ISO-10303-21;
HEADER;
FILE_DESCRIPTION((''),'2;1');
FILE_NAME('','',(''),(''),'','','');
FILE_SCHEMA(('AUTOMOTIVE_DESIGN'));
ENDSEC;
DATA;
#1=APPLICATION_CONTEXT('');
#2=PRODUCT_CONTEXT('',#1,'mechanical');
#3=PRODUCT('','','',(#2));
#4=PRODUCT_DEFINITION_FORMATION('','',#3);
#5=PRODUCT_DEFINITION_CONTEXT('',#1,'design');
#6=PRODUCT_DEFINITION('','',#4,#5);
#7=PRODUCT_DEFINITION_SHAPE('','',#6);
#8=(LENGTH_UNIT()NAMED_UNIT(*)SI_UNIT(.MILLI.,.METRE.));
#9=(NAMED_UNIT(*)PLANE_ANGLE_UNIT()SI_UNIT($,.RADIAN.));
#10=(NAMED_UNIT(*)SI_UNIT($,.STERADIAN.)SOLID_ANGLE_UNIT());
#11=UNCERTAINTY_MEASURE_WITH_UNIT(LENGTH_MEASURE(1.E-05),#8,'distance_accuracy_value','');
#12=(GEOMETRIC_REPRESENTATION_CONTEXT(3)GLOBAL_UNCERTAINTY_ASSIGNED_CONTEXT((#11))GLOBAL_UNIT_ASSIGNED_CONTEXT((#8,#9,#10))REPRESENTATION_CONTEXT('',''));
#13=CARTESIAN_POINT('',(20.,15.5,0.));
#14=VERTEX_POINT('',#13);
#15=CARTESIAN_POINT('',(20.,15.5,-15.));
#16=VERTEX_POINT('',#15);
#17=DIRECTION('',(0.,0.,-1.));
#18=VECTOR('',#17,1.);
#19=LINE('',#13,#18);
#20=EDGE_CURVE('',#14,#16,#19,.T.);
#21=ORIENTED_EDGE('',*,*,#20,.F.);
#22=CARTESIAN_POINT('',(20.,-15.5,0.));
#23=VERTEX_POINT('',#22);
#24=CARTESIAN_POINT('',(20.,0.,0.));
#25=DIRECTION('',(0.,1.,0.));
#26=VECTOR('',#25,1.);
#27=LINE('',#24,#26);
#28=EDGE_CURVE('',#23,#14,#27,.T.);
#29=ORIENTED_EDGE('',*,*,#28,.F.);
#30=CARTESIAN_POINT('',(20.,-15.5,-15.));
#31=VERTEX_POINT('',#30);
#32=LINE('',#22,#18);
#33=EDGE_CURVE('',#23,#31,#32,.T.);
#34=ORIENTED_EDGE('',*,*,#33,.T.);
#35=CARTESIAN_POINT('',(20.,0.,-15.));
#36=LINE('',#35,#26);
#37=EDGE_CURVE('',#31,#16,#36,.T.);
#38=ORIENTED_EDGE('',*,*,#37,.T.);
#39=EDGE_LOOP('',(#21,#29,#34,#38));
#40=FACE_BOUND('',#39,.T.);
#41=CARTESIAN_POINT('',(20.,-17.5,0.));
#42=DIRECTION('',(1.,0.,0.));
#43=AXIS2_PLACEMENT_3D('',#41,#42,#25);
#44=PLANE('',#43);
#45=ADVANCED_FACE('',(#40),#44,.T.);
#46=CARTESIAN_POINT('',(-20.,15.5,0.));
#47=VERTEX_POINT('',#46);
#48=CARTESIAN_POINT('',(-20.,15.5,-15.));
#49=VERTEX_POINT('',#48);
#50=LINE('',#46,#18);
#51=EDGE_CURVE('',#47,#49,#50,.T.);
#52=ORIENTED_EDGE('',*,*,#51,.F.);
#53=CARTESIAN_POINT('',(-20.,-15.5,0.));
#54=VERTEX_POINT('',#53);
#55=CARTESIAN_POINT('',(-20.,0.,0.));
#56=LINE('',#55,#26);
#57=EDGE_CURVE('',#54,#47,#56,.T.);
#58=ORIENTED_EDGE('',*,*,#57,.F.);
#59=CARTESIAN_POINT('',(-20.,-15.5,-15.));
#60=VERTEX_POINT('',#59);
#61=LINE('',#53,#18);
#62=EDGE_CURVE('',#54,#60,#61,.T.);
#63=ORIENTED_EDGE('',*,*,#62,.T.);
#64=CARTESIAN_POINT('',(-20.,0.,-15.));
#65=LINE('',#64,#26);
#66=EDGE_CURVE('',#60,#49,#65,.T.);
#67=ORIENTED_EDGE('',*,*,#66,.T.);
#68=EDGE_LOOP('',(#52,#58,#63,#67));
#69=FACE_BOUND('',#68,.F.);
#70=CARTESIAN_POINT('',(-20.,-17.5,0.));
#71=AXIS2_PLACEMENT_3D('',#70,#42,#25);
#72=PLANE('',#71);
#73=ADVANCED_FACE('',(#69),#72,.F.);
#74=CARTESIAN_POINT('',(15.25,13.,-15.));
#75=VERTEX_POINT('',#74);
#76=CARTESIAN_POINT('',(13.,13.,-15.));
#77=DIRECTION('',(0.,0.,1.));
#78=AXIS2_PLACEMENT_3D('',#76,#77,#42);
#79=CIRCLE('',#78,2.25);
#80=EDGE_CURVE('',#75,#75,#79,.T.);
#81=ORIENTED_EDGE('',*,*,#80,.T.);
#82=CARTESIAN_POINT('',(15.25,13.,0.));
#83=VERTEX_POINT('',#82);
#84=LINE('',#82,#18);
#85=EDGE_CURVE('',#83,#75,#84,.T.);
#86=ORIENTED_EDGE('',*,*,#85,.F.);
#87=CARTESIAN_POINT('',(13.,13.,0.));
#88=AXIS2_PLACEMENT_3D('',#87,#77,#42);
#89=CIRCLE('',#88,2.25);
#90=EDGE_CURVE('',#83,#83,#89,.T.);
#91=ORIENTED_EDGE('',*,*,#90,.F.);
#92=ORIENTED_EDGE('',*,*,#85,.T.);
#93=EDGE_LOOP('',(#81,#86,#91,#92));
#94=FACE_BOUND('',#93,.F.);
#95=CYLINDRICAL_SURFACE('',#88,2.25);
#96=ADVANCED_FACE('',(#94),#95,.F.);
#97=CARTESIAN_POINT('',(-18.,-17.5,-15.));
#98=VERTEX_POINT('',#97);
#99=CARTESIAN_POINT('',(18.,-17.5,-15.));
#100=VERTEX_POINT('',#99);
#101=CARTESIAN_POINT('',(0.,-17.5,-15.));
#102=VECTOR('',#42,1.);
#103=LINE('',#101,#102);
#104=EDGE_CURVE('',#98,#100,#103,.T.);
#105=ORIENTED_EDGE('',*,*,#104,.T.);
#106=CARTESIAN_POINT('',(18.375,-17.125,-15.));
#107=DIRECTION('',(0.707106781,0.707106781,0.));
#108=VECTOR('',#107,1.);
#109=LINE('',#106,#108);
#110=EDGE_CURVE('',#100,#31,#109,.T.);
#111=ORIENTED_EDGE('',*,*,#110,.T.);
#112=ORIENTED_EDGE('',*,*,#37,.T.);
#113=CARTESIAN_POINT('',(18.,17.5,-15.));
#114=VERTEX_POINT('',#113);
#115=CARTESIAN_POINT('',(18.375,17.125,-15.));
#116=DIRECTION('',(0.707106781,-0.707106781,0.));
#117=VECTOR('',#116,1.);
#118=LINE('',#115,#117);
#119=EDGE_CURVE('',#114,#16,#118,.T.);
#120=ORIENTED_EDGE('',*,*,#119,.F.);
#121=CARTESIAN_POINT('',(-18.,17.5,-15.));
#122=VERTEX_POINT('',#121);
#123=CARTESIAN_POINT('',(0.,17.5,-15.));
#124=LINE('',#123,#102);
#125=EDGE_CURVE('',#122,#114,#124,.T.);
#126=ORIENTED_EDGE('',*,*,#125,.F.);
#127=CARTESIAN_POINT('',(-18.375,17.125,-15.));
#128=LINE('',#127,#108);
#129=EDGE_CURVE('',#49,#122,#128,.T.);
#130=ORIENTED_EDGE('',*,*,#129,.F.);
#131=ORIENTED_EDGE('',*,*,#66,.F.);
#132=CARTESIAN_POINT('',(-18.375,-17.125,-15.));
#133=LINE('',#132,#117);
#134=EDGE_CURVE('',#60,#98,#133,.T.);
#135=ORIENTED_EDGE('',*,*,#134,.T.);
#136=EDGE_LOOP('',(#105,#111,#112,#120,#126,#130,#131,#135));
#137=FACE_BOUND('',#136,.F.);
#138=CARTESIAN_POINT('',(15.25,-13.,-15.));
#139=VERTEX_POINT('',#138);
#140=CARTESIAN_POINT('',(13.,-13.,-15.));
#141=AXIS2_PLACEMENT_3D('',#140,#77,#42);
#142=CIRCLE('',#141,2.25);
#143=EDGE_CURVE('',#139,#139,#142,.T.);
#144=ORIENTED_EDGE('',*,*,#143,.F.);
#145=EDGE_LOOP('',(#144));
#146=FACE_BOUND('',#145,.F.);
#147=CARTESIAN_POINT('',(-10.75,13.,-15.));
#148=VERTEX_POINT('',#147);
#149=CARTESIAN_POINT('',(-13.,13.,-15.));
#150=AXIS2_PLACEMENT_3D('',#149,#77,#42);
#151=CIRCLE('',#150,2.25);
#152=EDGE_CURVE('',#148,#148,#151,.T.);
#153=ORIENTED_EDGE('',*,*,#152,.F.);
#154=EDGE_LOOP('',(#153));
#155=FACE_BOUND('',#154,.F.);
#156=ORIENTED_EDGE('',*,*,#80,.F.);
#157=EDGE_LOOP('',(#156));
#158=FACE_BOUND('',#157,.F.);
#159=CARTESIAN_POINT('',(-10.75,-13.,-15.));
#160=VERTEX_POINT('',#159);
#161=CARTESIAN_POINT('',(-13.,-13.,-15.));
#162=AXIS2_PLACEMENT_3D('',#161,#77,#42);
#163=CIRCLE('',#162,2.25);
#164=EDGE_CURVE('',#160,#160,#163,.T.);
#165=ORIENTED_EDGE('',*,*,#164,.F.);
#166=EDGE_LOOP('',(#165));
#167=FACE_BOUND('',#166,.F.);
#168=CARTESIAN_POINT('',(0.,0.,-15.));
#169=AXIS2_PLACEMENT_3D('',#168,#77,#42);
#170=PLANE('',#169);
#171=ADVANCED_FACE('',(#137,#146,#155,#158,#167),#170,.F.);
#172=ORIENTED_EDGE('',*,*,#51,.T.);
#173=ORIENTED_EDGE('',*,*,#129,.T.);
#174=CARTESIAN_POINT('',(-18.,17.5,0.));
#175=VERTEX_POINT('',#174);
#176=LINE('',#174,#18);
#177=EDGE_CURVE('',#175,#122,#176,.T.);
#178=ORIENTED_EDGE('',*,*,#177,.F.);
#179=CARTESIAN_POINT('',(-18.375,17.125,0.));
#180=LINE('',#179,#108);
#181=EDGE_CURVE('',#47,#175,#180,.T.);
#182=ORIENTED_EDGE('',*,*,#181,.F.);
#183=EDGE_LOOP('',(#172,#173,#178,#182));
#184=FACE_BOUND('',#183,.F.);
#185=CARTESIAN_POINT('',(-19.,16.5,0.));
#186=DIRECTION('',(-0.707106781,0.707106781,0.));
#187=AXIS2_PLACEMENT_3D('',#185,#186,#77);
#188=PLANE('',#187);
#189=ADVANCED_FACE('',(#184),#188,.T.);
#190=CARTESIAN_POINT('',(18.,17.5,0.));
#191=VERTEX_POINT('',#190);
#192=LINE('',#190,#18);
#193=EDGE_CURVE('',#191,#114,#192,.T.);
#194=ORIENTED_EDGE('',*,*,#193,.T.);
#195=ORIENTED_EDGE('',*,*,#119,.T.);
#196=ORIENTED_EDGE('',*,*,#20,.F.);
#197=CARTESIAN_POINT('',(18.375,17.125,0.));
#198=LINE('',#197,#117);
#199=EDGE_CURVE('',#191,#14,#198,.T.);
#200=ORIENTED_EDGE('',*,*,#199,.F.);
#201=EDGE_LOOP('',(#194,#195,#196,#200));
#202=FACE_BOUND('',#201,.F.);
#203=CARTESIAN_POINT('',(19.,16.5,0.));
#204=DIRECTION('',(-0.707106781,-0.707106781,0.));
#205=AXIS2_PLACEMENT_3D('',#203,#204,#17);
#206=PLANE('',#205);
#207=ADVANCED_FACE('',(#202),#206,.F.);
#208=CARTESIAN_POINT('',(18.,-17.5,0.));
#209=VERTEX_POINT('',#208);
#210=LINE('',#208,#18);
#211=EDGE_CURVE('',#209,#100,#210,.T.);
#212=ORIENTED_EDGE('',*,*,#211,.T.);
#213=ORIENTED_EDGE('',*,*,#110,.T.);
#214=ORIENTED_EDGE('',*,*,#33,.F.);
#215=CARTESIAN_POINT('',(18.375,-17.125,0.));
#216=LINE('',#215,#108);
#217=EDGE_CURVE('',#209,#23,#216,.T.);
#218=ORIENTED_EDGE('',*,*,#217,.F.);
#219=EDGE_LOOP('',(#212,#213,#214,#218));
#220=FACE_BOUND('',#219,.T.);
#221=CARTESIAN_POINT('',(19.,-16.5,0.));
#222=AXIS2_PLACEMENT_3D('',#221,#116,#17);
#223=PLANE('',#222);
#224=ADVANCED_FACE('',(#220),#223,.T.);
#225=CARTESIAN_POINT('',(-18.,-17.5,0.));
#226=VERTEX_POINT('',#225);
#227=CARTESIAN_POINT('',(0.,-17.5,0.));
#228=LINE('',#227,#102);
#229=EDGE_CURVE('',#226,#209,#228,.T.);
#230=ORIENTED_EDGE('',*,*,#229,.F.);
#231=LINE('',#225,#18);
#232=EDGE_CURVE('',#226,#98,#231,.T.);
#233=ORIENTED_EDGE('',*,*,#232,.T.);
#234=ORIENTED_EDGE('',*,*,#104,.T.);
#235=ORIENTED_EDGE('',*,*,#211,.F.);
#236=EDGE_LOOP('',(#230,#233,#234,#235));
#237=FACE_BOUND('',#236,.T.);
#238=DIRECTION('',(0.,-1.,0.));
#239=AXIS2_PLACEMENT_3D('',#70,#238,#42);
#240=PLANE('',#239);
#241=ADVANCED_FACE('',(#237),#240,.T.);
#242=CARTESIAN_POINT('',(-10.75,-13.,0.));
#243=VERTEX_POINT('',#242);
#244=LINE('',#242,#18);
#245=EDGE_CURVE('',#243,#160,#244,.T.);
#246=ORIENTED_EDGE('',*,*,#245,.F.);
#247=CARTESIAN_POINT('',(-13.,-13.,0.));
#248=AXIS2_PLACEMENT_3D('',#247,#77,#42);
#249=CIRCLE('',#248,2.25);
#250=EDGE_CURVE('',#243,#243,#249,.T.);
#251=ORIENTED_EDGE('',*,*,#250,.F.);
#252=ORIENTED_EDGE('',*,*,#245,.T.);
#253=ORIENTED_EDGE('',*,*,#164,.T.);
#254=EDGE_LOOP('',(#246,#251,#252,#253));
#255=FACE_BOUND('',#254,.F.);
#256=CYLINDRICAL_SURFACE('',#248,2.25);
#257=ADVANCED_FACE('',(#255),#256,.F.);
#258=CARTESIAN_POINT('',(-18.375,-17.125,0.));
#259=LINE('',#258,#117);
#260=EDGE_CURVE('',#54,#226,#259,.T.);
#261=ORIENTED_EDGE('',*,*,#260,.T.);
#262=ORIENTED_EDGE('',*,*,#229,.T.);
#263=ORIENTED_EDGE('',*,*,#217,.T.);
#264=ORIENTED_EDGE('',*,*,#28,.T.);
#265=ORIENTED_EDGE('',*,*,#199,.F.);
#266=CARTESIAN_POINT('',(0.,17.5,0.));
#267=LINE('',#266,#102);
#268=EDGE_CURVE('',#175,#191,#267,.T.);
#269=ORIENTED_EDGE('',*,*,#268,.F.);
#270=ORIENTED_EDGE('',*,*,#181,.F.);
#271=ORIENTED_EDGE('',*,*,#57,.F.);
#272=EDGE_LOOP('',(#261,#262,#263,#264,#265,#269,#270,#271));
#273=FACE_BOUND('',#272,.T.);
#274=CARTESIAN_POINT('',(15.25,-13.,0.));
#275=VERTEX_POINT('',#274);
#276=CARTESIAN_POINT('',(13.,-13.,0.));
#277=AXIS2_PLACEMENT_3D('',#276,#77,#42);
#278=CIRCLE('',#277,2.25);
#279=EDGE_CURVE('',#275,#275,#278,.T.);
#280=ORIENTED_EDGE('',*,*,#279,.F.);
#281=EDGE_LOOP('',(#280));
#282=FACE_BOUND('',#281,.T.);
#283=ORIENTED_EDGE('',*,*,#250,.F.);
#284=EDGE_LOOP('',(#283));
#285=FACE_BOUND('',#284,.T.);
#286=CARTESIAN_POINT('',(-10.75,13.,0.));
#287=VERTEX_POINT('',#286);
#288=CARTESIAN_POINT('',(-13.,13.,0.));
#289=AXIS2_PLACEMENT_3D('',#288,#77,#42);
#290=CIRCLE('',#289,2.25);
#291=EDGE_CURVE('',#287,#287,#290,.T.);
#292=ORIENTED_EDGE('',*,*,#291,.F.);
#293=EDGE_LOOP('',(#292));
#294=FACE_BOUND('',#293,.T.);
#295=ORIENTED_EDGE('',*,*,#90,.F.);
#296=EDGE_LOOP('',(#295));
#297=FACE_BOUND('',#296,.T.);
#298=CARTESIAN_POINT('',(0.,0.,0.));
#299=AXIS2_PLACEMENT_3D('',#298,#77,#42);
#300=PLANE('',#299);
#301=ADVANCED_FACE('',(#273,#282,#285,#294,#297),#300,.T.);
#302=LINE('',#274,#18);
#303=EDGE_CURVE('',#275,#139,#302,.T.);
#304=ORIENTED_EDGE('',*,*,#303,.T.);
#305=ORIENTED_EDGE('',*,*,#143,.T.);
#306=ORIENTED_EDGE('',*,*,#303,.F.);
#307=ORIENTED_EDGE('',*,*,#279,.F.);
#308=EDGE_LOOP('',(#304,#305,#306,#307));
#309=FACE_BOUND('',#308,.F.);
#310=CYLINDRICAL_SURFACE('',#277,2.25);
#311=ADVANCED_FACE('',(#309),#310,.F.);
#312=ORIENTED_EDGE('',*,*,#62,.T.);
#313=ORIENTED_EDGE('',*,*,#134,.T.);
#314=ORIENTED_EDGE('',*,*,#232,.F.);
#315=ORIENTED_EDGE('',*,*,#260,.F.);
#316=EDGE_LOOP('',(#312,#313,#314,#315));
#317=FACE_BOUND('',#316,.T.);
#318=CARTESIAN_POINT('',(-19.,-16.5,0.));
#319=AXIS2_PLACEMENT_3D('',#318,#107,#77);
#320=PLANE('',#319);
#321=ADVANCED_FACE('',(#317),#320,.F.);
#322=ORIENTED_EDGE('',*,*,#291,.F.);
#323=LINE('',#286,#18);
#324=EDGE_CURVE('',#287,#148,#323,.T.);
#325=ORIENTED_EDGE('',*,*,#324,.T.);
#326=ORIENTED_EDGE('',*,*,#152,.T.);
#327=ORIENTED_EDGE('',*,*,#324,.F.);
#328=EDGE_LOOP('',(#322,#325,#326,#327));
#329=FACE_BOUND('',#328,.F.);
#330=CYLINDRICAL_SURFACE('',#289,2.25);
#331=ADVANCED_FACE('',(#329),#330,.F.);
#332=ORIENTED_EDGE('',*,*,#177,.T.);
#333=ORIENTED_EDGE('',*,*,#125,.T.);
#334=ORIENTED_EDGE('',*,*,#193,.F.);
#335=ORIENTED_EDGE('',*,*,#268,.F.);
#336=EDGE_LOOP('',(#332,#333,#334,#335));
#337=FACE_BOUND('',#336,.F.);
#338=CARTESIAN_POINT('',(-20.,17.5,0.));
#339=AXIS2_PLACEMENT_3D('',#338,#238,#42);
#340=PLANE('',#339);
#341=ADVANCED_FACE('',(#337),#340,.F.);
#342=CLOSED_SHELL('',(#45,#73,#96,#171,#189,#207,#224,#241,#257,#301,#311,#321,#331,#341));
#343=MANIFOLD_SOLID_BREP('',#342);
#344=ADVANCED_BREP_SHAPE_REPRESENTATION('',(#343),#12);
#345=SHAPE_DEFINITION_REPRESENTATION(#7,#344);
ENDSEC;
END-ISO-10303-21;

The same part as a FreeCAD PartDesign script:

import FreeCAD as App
import Part
import Sketcher
from FreeCAD import Vector


def edges_at(feature, points):
    """Names of the edges that pass closest to the given points."""
    edges = feature.Shape.Edges
    near = lambda p: min(range(len(edges)), key=lambda i: edges[i].distToShape(Part.Vertex(*p))[0])
    return sorted({f"Edge{near(p) + 1}" for p in points})

doc = App.newDocument("Part")
body = doc.addObject("PartDesign::Body", "Body")

# Sketch on XY plane
sketch1 = doc.addObject("Sketcher::SketchObject", "Sketch")
body.addObject(sketch1)
sketch1.AttachmentSupport = (doc.XY_Plane, [""])
sketch1.MapMode = "FlatFace"
sketch1.addGeometry([
    Part.LineSegment(Vector(-20, 18, 0), Vector(-20, -18, 0)),
    Part.LineSegment(Vector(-20, -18, 0), Vector(20, -18, 0)),
    Part.LineSegment(Vector(20, -18, 0), Vector(20, 18, 0)),
    Part.LineSegment(Vector(20, 18, 0), Vector(-20, 18, 0)),
], False)
sketch1.addConstraint([
    Sketcher.Constraint("Coincident", 0, 2, 1, 1),
    Sketcher.Constraint("Coincident", 1, 2, 2, 1),
    Sketcher.Constraint("Coincident", 2, 2, 3, 1),
    Sketcher.Constraint("Coincident", 3, 2, 0, 1),
    Sketcher.Constraint("Vertical", 0),
    Sketcher.Constraint("Horizontal", 1),
    Sketcher.Constraint("Vertical", 2),
    Sketcher.Constraint("Horizontal", 3),
    Sketcher.Constraint("Symmetric", 0, 2, 2, 2, -1, 1),
    Sketcher.Constraint("DistanceX", 1, 1, 1, 2, 40.0),
    Sketcher.Constraint("DistanceY", 0, 2, 0, 1, 35.0),
])
pad1 = doc.addObject("PartDesign::Pad", "Pad")
body.addObject(pad1)
pad1.Profile = sketch1
pad1.Length = 15
pad1.Reversed = True

# Sketch on XY plane
sketch2 = doc.addObject("Sketcher::SketchObject", "Sketch001")
body.addObject(sketch2)
sketch2.AttachmentSupport = (doc.XY_Plane, [""])
sketch2.MapMode = "FlatFace"
sketch2.addGeometry([
    Part.Circle(Vector(-13, 13, 0), Vector(0, 0, 1), 2.2),
    Part.Circle(Vector(13, 13, 0), Vector(0, 0, 1), 2.2),
    Part.Circle(Vector(13, -13, 0), Vector(0, 0, 1), 2.2),
    Part.Circle(Vector(-13, -13, 0), Vector(0, 0, 1), 2.2),
], False)
sketch2.addConstraint([
    Sketcher.Constraint("Equal", 0, 1),
    Sketcher.Constraint("Equal", 1, 2),
    Sketcher.Constraint("Equal", 2, 3),
    Sketcher.Constraint("Symmetric", 0, 3, 2, 3, -1, 1),
    Sketcher.Constraint("Symmetric", 1, 3, 3, 3, -1, 1),
    Sketcher.Constraint("Symmetric", 0, 3, 1, 3, -2),
    Sketcher.Constraint("Diameter", 0, 4.5),
    Sketcher.Constraint("DistanceX", 0, 3, -1, 1, 13.0),
    Sketcher.Constraint("DistanceY", -1, 1, 0, 3, 13.0),
])
pocket1 = doc.addObject("PartDesign::Pocket", "Pocket")
body.addObject(pocket1)
pocket1.Profile = sketch2
pocket1.Length = 25
doc.recompute()

chamfer = doc.addObject("PartDesign::Chamfer", "Chamfer")
body.addObject(chamfer)
chamfer.Base = (pocket1, edges_at(pocket1, [
    (-20, -17.5, -7.5),
    (20, -17.5, -7.5),
    (-20, 17.5, -7.5),
    (20, 17.5, -7.5),
]))
chamfer.Size = 2

doc.recompute()
